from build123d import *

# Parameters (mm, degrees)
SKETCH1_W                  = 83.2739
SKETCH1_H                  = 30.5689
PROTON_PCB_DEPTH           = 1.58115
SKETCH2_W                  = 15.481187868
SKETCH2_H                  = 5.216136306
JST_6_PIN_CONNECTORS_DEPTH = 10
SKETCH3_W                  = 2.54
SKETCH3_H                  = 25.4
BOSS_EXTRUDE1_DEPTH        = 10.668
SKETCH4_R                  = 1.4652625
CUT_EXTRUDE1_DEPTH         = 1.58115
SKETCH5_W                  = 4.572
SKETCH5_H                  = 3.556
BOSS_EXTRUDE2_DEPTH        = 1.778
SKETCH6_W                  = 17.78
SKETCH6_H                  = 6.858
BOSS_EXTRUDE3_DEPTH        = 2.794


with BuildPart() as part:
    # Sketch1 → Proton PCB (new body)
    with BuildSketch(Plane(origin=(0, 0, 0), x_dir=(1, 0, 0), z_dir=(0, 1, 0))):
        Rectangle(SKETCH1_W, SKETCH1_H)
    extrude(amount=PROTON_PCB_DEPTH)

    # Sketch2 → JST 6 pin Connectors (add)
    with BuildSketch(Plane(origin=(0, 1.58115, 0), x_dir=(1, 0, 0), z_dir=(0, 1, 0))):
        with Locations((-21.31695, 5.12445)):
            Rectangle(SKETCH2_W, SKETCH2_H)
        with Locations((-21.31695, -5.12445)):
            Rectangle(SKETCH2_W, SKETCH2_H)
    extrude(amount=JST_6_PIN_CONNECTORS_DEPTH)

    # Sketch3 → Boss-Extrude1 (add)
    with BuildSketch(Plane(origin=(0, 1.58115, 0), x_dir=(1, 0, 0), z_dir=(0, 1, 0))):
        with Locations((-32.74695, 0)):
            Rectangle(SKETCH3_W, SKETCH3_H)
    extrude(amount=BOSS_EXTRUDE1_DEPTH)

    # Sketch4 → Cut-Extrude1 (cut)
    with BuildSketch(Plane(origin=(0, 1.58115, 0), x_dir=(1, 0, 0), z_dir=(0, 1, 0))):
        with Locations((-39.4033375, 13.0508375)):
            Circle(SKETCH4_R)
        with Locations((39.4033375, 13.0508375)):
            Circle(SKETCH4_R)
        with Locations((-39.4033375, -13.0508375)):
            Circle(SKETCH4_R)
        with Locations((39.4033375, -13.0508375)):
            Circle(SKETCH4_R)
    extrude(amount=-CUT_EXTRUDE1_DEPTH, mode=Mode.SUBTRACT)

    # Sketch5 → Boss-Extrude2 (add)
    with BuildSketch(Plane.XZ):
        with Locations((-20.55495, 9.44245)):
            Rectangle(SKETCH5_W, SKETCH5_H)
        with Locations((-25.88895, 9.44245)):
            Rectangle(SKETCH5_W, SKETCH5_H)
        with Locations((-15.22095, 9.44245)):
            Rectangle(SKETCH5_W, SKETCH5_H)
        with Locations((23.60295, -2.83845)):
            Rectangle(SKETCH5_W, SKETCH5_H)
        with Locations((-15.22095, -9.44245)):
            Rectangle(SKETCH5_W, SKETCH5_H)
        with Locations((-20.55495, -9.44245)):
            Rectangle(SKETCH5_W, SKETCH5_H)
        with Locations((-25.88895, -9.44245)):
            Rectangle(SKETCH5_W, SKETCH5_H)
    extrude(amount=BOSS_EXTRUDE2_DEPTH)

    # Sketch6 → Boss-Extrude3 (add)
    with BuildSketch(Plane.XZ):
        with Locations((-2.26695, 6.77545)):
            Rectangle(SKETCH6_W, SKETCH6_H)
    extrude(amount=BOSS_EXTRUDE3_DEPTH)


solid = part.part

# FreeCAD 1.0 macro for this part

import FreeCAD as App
import Part
import Sketcher
from FreeCAD import Vector
Q = App.Units.Quantity


def add_polygon(sketch, points):
    """Adds a closed chain of lines whose ends are joined by coincident constraints."""
    first, n = sketch.GeometryCount, len(points)
    for a, b in zip(points, points[1:] + points[:1]):
        sketch.addGeometry(Part.LineSegment(App.Vector(*a, 0), App.Vector(*b, 0)), False)
    for i in range(n):
        sketch.addConstraint(Sketcher.Constraint("Coincident", first + i, 2, first + (i + 1) % n, 1))

doc = App.newDocument("Part")
params = doc.addObject("Spreadsheet::Sheet", "Params")
for row, (alias, value) in enumerate([
    ("pad1_length", "1.58115 mm"),
    ("pad2_length", "10 mm"),
    ("sketch3_height", "1 in"),
    ("sketch3_width", "0.1 in"),
    ("pad3_length", "0.42 in"),
    ("pocket1_length", "1.58115 mm"),
    ("sketch5_width", "0.18 in"),
    ("sketch5_height", "0.14 in"),
    ("pad4_length", "0.07 in"),
    ("sketch6_width", "0.7 in"),
    ("sketch6_height", "0.27 in"),
    ("pad5_length", "0.11 in"),
], start=1):
    params.set(f"A{row}", alias)
    params.set(f"B{row}", "=" + value)
    params.setAlias(f"B{row}", alias)

body = doc.addObject("PartDesign::Body", "Body")

# Sketch on XZ plane
sketch1 = body.newObject("Sketcher::SketchObject", "Sketch")
sketch1.AttachmentSupport = (doc.getObject("XZ_Plane"), [""])
sketch1.MapMode = "FlatFace"
add_polygon(sketch1, [(-41.63695, -15.28445), (-41.63695, 15.28445), (41.63695, 15.28445), (41.63695, -15.28445)])  # lines 0-3
sketch1.addConstraint([
    Sketcher.Constraint("Vertical", 0),
    Sketcher.Constraint("Horizontal", 1),
    Sketcher.Constraint("Vertical", 2),
    Sketcher.Constraint("Horizontal", 3),
    Sketcher.Constraint("Symmetric", 0, 2, 2, 2, -1, 1),
    Sketcher.Constraint("DistanceX", 1, 1, 1, 2, Q("3.2785 in")),
    Sketcher.Constraint("DistanceY", 0, 1, 0, 2, Q("1.2035 in")),
])
pad1 = body.newObject("PartDesign::Pad", "Pad")
pad1.Profile = sketch1
pad1.setExpression("Length", "Params.pad1_length")
pad1.Reversed = True

# Sketch on XZ plane
sketch2 = body.newObject("Sketcher::SketchObject", "Sketch001")
sketch2.AttachmentSupport = (doc.getObject("XZ_Plane"), [""])
sketch2.MapMode = "FlatFace"
sketch2.AttachmentOffset = App.Placement(Vector(0, 0, -1.58115), App.Rotation())
add_polygon(sketch2, [(-29.057544, -7.732518), (-29.057544, -2.516382), (-13.576356, -2.516382), (-13.576356, -7.732518)])  # lines 0-3
add_polygon(sketch2, [(-29.057544, 2.516382), (-29.057544, 7.732518), (-13.576356, 7.732518), (-13.576356, 2.516382)])  # lines 4-7
sketch2.addConstraint([
    Sketcher.Constraint("Vertical", 0),
    Sketcher.Constraint("Horizontal", 1),
    Sketcher.Constraint("Vertical", 2),
    Sketcher.Constraint("Horizontal", 3),
    Sketcher.Constraint("Vertical", 4),
    Sketcher.Constraint("Horizontal", 5),
    Sketcher.Constraint("Vertical", 6),
    Sketcher.Constraint("Horizontal", 7),
    Sketcher.Constraint("Symmetric", 3, 2, 4, 2, -1),
    Sketcher.Constraint("Symmetric", 1, 2, 6, 2, -1),
    Sketcher.Constraint("DistanceY", 0, 2, 4, 2, Q("0.4035 in")),
    Sketcher.Constraint("DistanceX", 1, 1, 1, 2, 15.481188),
    Sketcher.Constraint("DistanceY", 0, 1, 0, 2, 5.216136),
    Sketcher.Constraint("DistanceX", 0, 2, -1, 1, 29.057544),
])
pad2 = body.newObject("PartDesign::Pad", "Pad001")
pad2.Profile = sketch2
pad2.setExpression("Length", "Params.pad2_length")
pad2.Reversed = True

# Sketch on XZ plane
sketch3 = body.newObject("Sketcher::SketchObject", "Sketch002")
sketch3.AttachmentSupport = (doc.getObject("XZ_Plane"), [""])
sketch3.MapMode = "FlatFace"
sketch3.AttachmentOffset = App.Placement(Vector(0, 0, -1.58115), App.Rotation())
add_polygon(sketch3, [(-34.01695, -12.7), (-34.01695, 12.7), (-31.47695, 12.7), (-31.47695, -12.7)])  # lines 0-3
sketch3.addConstraint([
    Sketcher.Constraint("Vertical", 0),
    Sketcher.Constraint("Horizontal", 1),
    Sketcher.Constraint("Vertical", 2),
    Sketcher.Constraint("Horizontal", 3),
    Sketcher.Constraint("DistanceY", 0, 1, 0, 2, Q("1 in")),
    Sketcher.Constraint("DistanceX", 1, 1, 1, 2, Q("0.1 in")),
    Sketcher.Constraint("DistanceY", -1, 1, 0, 2, Q("0.5 in")),
    Sketcher.Constraint("DistanceX", 0, 2, -1, 1, 34.01695),
])
sketch3.setExpression("Constraints[8]", "Params.sketch3_height")
sketch3.setExpression("Constraints[9]", "Params.sketch3_width")
pad3 = body.newObject("PartDesign::Pad", "Pad002")
pad3.Profile = sketch3
pad3.setExpression("Length", "Params.pad3_length")
pad3.Reversed = True

# Sketch on XZ plane
sketch4 = body.newObject("Sketcher::SketchObject", "Sketch003")
sketch4.AttachmentSupport = (doc.getObject("XZ_Plane"), [""])
sketch4.MapMode = "FlatFace"
sketch4.AttachmentOffset = App.Placement(Vector(0, 0, -1.58115), App.Rotation())
sketch4.addGeometry([
    Part.Circle(Vector(-39.403337, -13.050838, 0), Vector(0, 0, 1), 1.465262),
    Part.Circle(Vector(39.403337, -13.050838, 0), Vector(0, 0, 1), 1.465262),
    Part.Circle(Vector(-39.403337, 13.050838, 0), Vector(0, 0, 1), 1.465262),
    Part.Circle(Vector(39.403337, 13.050838, 0), Vector(0, 0, 1), 1.465262),
], False)
sketch4.addConstraint([
    Sketcher.Constraint("Equal", 0, 1),
    Sketcher.Constraint("Equal", 1, 2),
    Sketcher.Constraint("Equal", 2, 3),
    Sketcher.Constraint("Symmetric", 1, 3, 2, 3, -1, 1),
    Sketcher.Constraint("Symmetric", 0, 3, 3, 3, -1, 1),
    Sketcher.Constraint("Symmetric", 0, 3, 1, 3, -2),
    Sketcher.Constraint("Diameter", 0, 2.930525),
    Sketcher.Constraint("DistanceX", 0, 3, -1, 1, 39.403337),
    Sketcher.Constraint("DistanceY", 0, 3, -1, 1, 13.050838),
])
pocket1 = body.newObject("PartDesign::Pocket", "Pocket")
pocket1.Profile = sketch4
pocket1.setExpression("Length", "Params.pocket1_length")
pocket1.Reversed = True

# Sketch on XZ plane
sketch5 = body.newObject("Sketcher::SketchObject", "Sketch004")
sketch5.AttachmentSupport = (doc.getObject("XZ_Plane"), [""])
sketch5.MapMode = "FlatFace"
add_polygon(sketch5, [(-22.84095, 11.22045), (-22.84095, 7.66445), (-18.26895, 7.66445), (-18.26895, 11.22045)])  # lines 0-3
add_polygon(sketch5, [(-28.17495, 11.22045), (-28.17495, 7.66445), (-23.60295, 7.66445), (-23.60295, 11.22045)])  # lines 4-7
add_polygon(sketch5, [(-17.50695, 11.22045), (-17.50695, 7.66445), (-12.93495, 7.66445), (-12.93495, 11.22045)])  # lines 8-11
add_polygon(sketch5, [(21.31695, -1.06045), (21.31695, -4.61645), (25.88895, -4.61645), (25.88895, -1.06045)])  # lines 12-15
add_polygon(sketch5, [(-17.50695, -7.66445), (-17.50695, -11.22045), (-12.93495, -11.22045), (-12.93495, -7.66445)])  # lines 16-19
add_polygon(sketch5, [(-22.84095, -7.66445), (-22.84095, -11.22045), (-18.26895, -11.22045), (-18.26895, -7.66445)])  # lines 20-23
add_polygon(sketch5, [(-28.17495, -7.66445), (-28.17495, -11.22045), (-23.60295, -11.22045), (-23.60295, -7.66445)])  # lines 24-27
sketch5.addConstraint([
    Sketcher.Constraint("Vertical", 0),
    Sketcher.Constraint("Horizontal", 1),
    Sketcher.Constraint("Vertical", 2),
    Sketcher.Constraint("Horizontal", 3),
    Sketcher.Constraint("Vertical", 4),
    Sketcher.Constraint("Horizontal", 5),
    Sketcher.Constraint("Vertical", 6),
    Sketcher.Constraint("Horizontal", 7),
    Sketcher.Constraint("Vertical", 8),
    Sketcher.Constraint("Horizontal", 9),
    Sketcher.Constraint("Vertical", 10),
    Sketcher.Constraint("Horizontal", 11),
    Sketcher.Constraint("Vertical", 12),
    Sketcher.Constraint("Horizontal", 13),
    Sketcher.Constraint("Vertical", 14),
    Sketcher.Constraint("Horizontal", 15),
    Sketcher.Constraint("Vertical", 16),
    Sketcher.Constraint("Horizontal", 17),
    Sketcher.Constraint("Vertical", 18),
    Sketcher.Constraint("Horizontal", 19),
    Sketcher.Constraint("Vertical", 20),
    Sketcher.Constraint("Horizontal", 21),
    Sketcher.Constraint("Vertical", 22),
    Sketcher.Constraint("Horizontal", 23),
    Sketcher.Constraint("Vertical", 24),
    Sketcher.Constraint("Horizontal", 25),
    Sketcher.Constraint("Vertical", 26),
    Sketcher.Constraint("Horizontal", 27),
    Sketcher.Constraint("Symmetric", 11, 2, 16, 2, -1),
    Sketcher.Constraint("Symmetric", 9, 2, 18, 2, -1),
    Sketcher.Constraint("Symmetric", 3, 2, 20, 2, -1),
    Sketcher.Constraint("Symmetric", 1, 2, 22, 2, -1),
    Sketcher.Constraint("Symmetric", 7, 2, 24, 2, -1),
    Sketcher.Constraint("Symmetric", 5, 2, 26, 2, -1),
    Sketcher.Constraint("Horizontal", 1, 2, 4, 2),
    Sketcher.Constraint("Horizontal", 3, 2, 6, 2),
    Sketcher.Constraint("Horizontal", 5, 2, 8, 2),
    Sketcher.Constraint("Horizontal", 7, 2, 10, 2),
    Sketcher.Constraint("Equal", 3, 5),
    Sketcher.Constraint("Equal", 7, 9),
    Sketcher.Constraint("Equal", 11, 13),
    Sketcher.Constraint("Equal", 10, 12),
    Sketcher.Constraint("DistanceX", 1, 1, 1, 2, Q("0.18 in")),
    Sketcher.Constraint("DistanceY", 0, 2, 0, 1, Q("0.14 in")),
    Sketcher.Constraint("DistanceX", 4, 2, 0, 2, Q("0.21 in")),
    Sketcher.Constraint("DistanceX", 1, 2, 8, 2, Q("0.03 in")),
    Sketcher.Constraint("DistanceX", 9, 2, 12, 2, Q("1.3485 in")),
    Sketcher.Constraint("DistanceY", 12, 2, 9, 2, Q("0.4835 in")),
    Sketcher.Constraint("DistanceY", 16, 2, 8, 2, Q("0.7435 in")),
    Sketcher.Constraint("DistanceX", 0, 2, -1, 1, 22.84095),
])
sketch5.setExpression("Constraints[70]", "Params.sketch5_width")
sketch5.setExpression("Constraints[71]", "Params.sketch5_height")
pad4 = body.newObject("PartDesign::Pad", "Pad003")
pad4.Profile = sketch5
pad4.setExpression("Length", "Params.pad4_length")

# Sketch on XZ plane
sketch6 = body.newObject("Sketcher::SketchObject", "Sketch005")
sketch6.AttachmentSupport = (doc.getObject("XZ_Plane"), [""])
sketch6.MapMode = "FlatFace"
add_polygon(sketch6, [(-11.15695, 10.20445), (-11.15695, 3.34645), (6.62305, 3.34645), (6.62305, 10.20445)])  # lines 0-3
sketch6.addConstraint([
    Sketcher.Constraint("Vertical", 0),
    Sketcher.Constraint("Horizontal", 1),
    Sketcher.Constraint("Vertical", 2),
    Sketcher.Constraint("Horizontal", 3),
    Sketcher.Constraint("DistanceX", 1, 1, 1, 2, Q("0.7 in")),
    Sketcher.Constraint("DistanceY", 0, 2, 0, 1, Q("0.27 in")),
    Sketcher.Constraint("DistanceX", 0, 2, -1, 1, 11.15695),
    Sketcher.Constraint("DistanceY", -1, 1, 0, 2, 3.34645),
])
sketch6.setExpression("Constraints[8]", "Params.sketch6_width")
sketch6.setExpression("Constraints[9]", "Params.sketch6_height")
pad5 = body.newObject("PartDesign::Pad", "Pad004")
pad5.Profile = sketch6
pad5.setExpression("Length", "Params.pad5_length")

doc.recompute()
